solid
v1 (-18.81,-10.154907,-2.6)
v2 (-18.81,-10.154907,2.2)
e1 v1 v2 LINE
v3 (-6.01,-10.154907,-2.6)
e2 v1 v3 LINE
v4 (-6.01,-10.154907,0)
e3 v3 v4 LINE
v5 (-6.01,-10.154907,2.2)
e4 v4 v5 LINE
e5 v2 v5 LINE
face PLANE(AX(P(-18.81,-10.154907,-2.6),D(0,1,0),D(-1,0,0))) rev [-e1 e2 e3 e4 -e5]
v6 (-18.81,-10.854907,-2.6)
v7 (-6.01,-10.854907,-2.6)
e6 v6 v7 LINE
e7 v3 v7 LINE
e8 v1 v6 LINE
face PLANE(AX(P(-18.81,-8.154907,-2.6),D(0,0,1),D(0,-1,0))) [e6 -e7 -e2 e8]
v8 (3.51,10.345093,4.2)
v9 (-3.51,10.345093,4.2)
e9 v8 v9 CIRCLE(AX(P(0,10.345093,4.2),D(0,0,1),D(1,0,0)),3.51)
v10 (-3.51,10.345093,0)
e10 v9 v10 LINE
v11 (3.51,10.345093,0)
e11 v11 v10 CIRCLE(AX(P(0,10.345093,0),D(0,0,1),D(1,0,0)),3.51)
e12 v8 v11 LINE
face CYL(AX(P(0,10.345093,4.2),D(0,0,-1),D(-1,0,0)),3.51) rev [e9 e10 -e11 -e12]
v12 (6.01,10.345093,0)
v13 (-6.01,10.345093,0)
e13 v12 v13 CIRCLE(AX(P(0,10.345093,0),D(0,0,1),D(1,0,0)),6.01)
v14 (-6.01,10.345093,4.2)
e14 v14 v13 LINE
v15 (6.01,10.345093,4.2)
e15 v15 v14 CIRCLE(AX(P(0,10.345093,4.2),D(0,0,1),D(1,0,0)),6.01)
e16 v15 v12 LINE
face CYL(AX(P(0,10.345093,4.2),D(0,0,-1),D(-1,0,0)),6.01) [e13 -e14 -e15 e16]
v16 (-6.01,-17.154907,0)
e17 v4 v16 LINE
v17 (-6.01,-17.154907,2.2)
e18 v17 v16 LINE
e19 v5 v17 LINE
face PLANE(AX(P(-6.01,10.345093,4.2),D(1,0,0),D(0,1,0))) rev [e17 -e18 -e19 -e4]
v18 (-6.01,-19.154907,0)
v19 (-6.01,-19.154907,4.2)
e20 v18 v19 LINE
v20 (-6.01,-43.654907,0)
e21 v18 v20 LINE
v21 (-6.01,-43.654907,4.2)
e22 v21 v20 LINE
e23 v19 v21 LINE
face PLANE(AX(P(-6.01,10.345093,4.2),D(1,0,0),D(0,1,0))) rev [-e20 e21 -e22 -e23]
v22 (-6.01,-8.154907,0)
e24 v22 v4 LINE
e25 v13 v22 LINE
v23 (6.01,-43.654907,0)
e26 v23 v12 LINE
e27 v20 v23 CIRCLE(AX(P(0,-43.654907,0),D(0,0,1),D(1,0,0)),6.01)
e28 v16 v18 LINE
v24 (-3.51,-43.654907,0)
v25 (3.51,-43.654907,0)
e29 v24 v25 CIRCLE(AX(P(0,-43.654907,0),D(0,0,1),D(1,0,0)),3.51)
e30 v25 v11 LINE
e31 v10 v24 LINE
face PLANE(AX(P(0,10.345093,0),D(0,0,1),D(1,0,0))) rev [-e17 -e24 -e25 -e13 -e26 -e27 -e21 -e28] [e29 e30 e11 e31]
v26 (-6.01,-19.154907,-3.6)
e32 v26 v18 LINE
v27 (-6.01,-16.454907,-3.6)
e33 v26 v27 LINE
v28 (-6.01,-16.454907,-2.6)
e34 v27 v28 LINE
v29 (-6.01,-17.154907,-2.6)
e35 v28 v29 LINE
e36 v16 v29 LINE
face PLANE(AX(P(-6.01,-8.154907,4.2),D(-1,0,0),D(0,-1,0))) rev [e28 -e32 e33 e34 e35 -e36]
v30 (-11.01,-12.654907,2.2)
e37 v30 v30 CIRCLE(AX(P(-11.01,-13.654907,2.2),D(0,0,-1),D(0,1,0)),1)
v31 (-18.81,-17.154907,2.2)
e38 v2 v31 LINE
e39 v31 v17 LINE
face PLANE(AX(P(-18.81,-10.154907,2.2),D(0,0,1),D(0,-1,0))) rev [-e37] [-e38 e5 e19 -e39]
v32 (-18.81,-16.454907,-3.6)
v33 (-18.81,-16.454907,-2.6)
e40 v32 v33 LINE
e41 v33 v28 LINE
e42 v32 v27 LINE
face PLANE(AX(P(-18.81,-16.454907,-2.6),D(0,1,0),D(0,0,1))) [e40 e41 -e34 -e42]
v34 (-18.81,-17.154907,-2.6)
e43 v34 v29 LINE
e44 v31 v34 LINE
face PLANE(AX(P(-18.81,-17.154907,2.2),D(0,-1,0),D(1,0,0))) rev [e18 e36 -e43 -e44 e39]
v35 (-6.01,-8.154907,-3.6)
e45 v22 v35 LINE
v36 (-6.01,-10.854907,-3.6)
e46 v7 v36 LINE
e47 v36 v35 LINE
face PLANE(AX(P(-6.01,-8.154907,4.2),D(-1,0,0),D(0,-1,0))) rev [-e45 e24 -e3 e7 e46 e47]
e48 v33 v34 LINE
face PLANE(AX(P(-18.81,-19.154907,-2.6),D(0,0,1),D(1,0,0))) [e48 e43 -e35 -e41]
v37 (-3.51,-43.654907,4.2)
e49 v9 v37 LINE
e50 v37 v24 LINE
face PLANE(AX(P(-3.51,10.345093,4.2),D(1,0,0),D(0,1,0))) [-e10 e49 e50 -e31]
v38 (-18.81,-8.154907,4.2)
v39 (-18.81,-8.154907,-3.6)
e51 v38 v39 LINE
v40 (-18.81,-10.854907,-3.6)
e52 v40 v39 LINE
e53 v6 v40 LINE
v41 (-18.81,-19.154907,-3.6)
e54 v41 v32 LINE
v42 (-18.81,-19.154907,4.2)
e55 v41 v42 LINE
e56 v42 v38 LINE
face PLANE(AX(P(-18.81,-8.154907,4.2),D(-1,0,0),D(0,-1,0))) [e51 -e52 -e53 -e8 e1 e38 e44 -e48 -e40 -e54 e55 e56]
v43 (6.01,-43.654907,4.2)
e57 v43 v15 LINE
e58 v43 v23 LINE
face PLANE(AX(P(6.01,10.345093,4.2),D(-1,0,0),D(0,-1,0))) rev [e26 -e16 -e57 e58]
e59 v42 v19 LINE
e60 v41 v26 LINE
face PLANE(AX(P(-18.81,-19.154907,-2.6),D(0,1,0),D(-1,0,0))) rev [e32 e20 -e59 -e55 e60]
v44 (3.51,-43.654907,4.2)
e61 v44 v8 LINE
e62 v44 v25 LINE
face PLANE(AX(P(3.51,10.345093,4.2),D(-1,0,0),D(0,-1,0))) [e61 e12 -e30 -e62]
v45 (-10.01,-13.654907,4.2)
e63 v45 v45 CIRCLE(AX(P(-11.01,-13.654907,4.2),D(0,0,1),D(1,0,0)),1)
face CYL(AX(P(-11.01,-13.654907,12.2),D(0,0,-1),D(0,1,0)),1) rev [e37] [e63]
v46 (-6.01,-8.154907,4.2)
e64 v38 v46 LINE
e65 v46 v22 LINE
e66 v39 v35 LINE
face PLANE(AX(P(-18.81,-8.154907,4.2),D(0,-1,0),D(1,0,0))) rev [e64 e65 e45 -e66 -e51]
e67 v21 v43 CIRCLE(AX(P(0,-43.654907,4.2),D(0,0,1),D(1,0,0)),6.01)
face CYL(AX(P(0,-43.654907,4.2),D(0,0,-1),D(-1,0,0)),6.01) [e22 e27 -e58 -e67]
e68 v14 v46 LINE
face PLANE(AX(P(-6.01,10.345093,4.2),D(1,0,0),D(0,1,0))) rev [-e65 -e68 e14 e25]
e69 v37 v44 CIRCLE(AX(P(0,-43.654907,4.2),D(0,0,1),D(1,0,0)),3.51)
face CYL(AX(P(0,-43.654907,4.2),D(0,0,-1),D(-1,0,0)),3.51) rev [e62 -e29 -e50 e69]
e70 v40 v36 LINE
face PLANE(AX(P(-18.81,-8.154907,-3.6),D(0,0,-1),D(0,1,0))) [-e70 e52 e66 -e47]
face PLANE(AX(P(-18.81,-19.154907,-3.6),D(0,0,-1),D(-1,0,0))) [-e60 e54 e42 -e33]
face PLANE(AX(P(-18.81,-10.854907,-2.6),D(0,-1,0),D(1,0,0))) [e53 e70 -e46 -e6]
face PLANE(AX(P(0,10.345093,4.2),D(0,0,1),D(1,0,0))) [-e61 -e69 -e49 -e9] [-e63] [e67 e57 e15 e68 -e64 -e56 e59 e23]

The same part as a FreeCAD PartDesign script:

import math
import FreeCAD as App
import Part
import Sketcher
Q = App.Units.Quantity

doc = App.newDocument("Part")
body = doc.addObject("PartDesign::Body", "Body")

# Sketch on XY plane
sketch1 = doc.addObject("Sketcher::SketchObject", "Sketch")
body.addObject(sketch1)
sketch1.AttachmentSupport = (doc.XY_Plane, [""])
sketch1.MapMode = "FlatFace"
sketch1.addGeometry(Part.LineSegment(App.Vector(6, -43.7, 0), App.Vector(6, 10.3, 0)), False)
sketch1.addGeometry(Part.ArcOfCircle(Part.Circle(App.Vector(0, 10.3, 0), App.Vector(0, 0, 1), 6), math.radians(0), math.radians(180)), False)
sketch1.addGeometry(Part.LineSegment(App.Vector(-6, 10.3, 0), App.Vector(-6, -43.7, 0)), False)
sketch1.addGeometry(Part.ArcOfCircle(Part.Circle(App.Vector(0, -43.7, 0), App.Vector(0, 0, 1), 6), math.radians(180), math.radians(360)), False)
sketch1.addGeometry(Part.LineSegment(App.Vector(3.5, 10.3, 0), App.Vector(3.5, -43.7, 0)), False)
sketch1.addGeometry(Part.ArcOfCircle(Part.Circle(App.Vector(0, -43.7, 0), App.Vector(0, 0, 1), 3.5), math.radians(180), math.radians(360)), False)
sketch1.addGeometry(Part.LineSegment(App.Vector(-3.5, -43.7, 0), App.Vector(-3.5, 10.3, 0)), False)
sketch1.addGeometry(Part.ArcOfCircle(Part.Circle(App.Vector(0, 10.3, 0), App.Vector(0, 0, 1), 3.5), math.radians(0), math.radians(180)), False)
sketch1.addConstraint(Sketcher.Constraint("Tangent", 0, 2, 1, 1))
sketch1.addConstraint(Sketcher.Constraint("Tangent", 1, 2, 2, 1))
sketch1.addConstraint(Sketcher.Constraint("Tangent", 2, 2, 3, 1))
sketch1.addConstraint(Sketcher.Constraint("Tangent", 3, 2, 0, 1))
sketch1.addConstraint(Sketcher.Constraint("Tangent", 4, 2, 5, 2))
sketch1.addConstraint(Sketcher.Constraint("Tangent", 5, 1, 6, 1))
sketch1.addConstraint(Sketcher.Constraint("Tangent", 6, 2, 7, 2))
sketch1.addConstraint(Sketcher.Constraint("Tangent", 7, 1, 4, 1))
sketch1.addConstraint(Sketcher.Constraint("Vertical", 0))
sketch1.addConstraint(Sketcher.Constraint("Vertical", 2))
sketch1.addConstraint(Sketcher.Constraint("Vertical", 4))
sketch1.addConstraint(Sketcher.Constraint("Vertical", 6))
sketch1.addConstraint(Sketcher.Constraint("Coincident", 5, 3, 3, 3))
sketch1.addConstraint(Sketcher.Constraint("PointOnObject", 1, 3, -2))
sketch1.addConstraint(Sketcher.Constraint("Horizontal", 7, 3, 0, 2))
sketch1.addConstraint(Sketcher.Constraint("DistanceY", 0, 1, 0, 2, Q("54 mm")))
sketch1.addConstraint(Sketcher.Constraint("Radius", 1, Q("6.01 mm")))
sketch1.addConstraint(Sketcher.Constraint("Radius", 5, Q("3.51 mm")))
sketch1.addConstraint(Sketcher.Constraint("DistanceY", -1, 1, 1, 3, Q("10.345093 mm")))
pad1 = doc.addObject("PartDesign::Pad", "Pad")
body.addObject(pad1)
pad1.Profile = sketch1
pad1.Length = 4.2

# Sketch on YZ plane
sketch2 = doc.addObject("Sketcher::SketchObject", "Sketch001")
body.addObject(sketch2)
sketch2.AttachmentSupport = (doc.YZ_Plane, [""])
sketch2.MapMode = "FlatFace"
sketch2.AttachmentOffset = App.Placement(App.Vector(0, 0, -6.01), App.Rotation())
sketch2.addGeometry(Part.LineSegment(App.Vector(-8.2, 4.2, 0), App.Vector(-8.2, -2.6, 0)), False)
sketch2.addGeometry(Part.LineSegment(App.Vector(-8.2, -2.6, 0), App.Vector(-10.2, -2.6, 0)), False)
sketch2.addGeometry(Part.LineSegment(App.Vector(-10.2, -2.6, 0), App.Vector(-10.2, 2.2, 0)), False)
sketch2.addGeometry(Part.LineSegment(App.Vector(-10.2, 2.2, 0), App.Vector(-17.2, 2.2, 0)), False)
sketch2.addGeometry(Part.LineSegment(App.Vector(-17.2, 2.2, 0), App.Vector(-17.2, -2.6, 0)), False)
sketch2.addGeometry(Part.LineSegment(App.Vector(-17.2, -2.6, 0), App.Vector(-19.2, -2.6, 0)), False)
sketch2.addGeometry(Part.LineSegment(App.Vector(-19.2, -2.6, 0), App.Vector(-19.2, 4.2, 0)), False)
sketch2.addGeometry(Part.LineSegment(App.Vector(-19.2, 4.2, 0), App.Vector(-8.2, 4.2, 0)), False)
sketch2.addConstraint(Sketcher.Constraint("Coincident", 0, 2, 1, 1))
sketch2.addConstraint(Sketcher.Constraint("Coincident", 1, 2, 2, 1))
sketch2.addConstraint(Sketcher.Constraint("Coincident", 2, 2, 3, 1))
sketch2.addConstraint(Sketcher.Constraint("Coincident", 3, 2, 4, 1))
sketch2.addConstraint(Sketcher.Constraint("Coincident", 4, 2, 5, 1))
sketch2.addConstraint(Sketcher.Constraint("Coincident", 5, 2, 6, 1))
sketch2.addConstraint(Sketcher.Constraint("Coincident", 6, 2, 7, 1))
sketch2.addConstraint(Sketcher.Constraint("Coincident", 7, 2, 0, 1))
sketch2.addConstraint(Sketcher.Constraint("Vertical", 0))
sketch2.addConstraint(Sketcher.Constraint("Horizontal", 1))
sketch2.addConstraint(Sketcher.Constraint("Vertical", 2))
sketch2.addConstraint(Sketcher.Constraint("Horizontal", 3))
sketch2.addConstraint(Sketcher.Constraint("Vertical", 4))
sketch2.addConstraint(Sketcher.Constraint("Horizontal", 5))
sketch2.addConstraint(Sketcher.Constraint("Vertical", 6))
sketch2.addConstraint(Sketcher.Constraint("Horizontal", 7))
sketch2.addConstraint(Sketcher.Constraint("Horizontal", 1, 2, 4, 2))
sketch2.addConstraint(Sketcher.Constraint("Equal", 1, 5))
sketch2.addConstraint(Sketcher.Constraint("DistanceX", 1, 2, 1, 1, Q("2 mm")))
sketch2.addConstraint(Sketcher.Constraint("DistanceX", 3, 2, 3, 1, Q("7 mm")))
sketch2.addConstraint(Sketcher.Constraint("DistanceY", 0, 2, 0, 1, Q("6.8 mm")))
sketch2.addConstraint(Sketcher.Constraint("DistanceY", 2, 1, 2, 2, Q("4.8 mm")))
sketch2.addConstraint(Sketcher.Constraint("DistanceY", 0, 2, -1, 1, Q("2.6 mm")))
sketch2.addConstraint(Sketcher.Constraint("DistanceX", 0, 2, -1, 1, Q("8.154907 mm")))
pad2 = doc.addObject("PartDesign::Pad", "Pad001")
body.addObject(pad2)
pad2.Profile = sketch2
pad2.Length = 12.8
pad2.Reversed = True

# Sketch on XY plane
sketch3 = doc.addObject("Sketcher::SketchObject", "Sketch002")
body.addObject(sketch3)
sketch3.AttachmentSupport = (doc.XY_Plane, [""])
sketch3.MapMode = "FlatFace"
sketch3.AttachmentOffset = App.Placement(App.Vector(0, 0, 2.2), App.Rotation())
sketch3.addGeometry(Part.Circle(App.Vector(-11, -13.7, 0), App.Vector(0, 0, 1), 1), False)
sketch3.addConstraint(Sketcher.Constraint("Diameter", 0, Q("2 mm")))
sketch3.addConstraint(Sketcher.Constraint("DistanceX", 0, 3, -1, 1, Q("11.01 mm")))
sketch3.addConstraint(Sketcher.Constraint("DistanceY", 0, 3, -1, 1, Q("13.654907 mm")))
pocket1 = doc.addObject("PartDesign::Pocket", "Pocket")
body.addObject(pocket1)
pocket1.Profile = sketch3
pocket1.Length = 10
pocket1.Reversed = True

# Sketch on YZ plane
sketch4 = doc.addObject("Sketcher::SketchObject", "Sketch003")
body.addObject(sketch4)
sketch4.AttachmentSupport = (doc.YZ_Plane, [""])
sketch4.MapMode = "FlatFace"
sketch4.AttachmentOffset = App.Placement(App.Vector(0, 0, -6.01), App.Rotation())
sketch4.addGeometry(Part.LineSegment(App.Vector(-8.2, -2.6, 0), App.Vector(-10.9, -2.6, 0)), False)
sketch4.addGeometry(Part.LineSegment(App.Vector(-10.9, -2.6, 0), App.Vector(-10.9, -3.6, 0)), False)
sketch4.addGeometry(Part.LineSegment(App.Vector(-10.9, -3.6, 0), App.Vector(-8.2, -3.6, 0)), False)
sketch4.addGeometry(Part.LineSegment(App.Vector(-8.2, -3.6, 0), App.Vector(-8.2, -2.6, 0)), False)
sketch4.addGeometry(Part.LineSegment(App.Vector(-16.5, -2.6, 0), App.Vector(-19.2, -2.6, 0)), False)
sketch4.addGeometry(Part.LineSegment(App.Vector(-19.2, -2.6, 0), App.Vector(-19.2, -3.6, 0)), False)
sketch4.addGeometry(Part.LineSegment(App.Vector(-19.2, -3.6, 0), App.Vector(-16.5, -3.6, 0)), False)
sketch4.addGeometry(Part.LineSegment(App.Vector(-16.5, -3.6, 0), App.Vector(-16.5, -2.6, 0)), False)
sketch4.addConstraint(Sketcher.Constraint("Coincident", 0, 2, 1, 1))
sketch4.addConstraint(Sketcher.Constraint("Coincident", 1, 2, 2, 1))
sketch4.addConstraint(Sketcher.Constraint("Coincident", 2, 2, 3, 1))
sketch4.addConstraint(Sketcher.Constraint("Coincident", 3, 2, 0, 1))
sketch4.addConstraint(Sketcher.Constraint("Coincident", 4, 2, 5, 1))
sketch4.addConstraint(Sketcher.Constraint("Coincident", 5, 2, 6, 1))
sketch4.addConstraint(Sketcher.Constraint("Coincident", 6, 2, 7, 1))
sketch4.addConstraint(Sketcher.Constraint("Coincident", 7, 2, 4, 1))
sketch4.addConstraint(Sketcher.Constraint("Horizontal", 0))
sketch4.addConstraint(Sketcher.Constraint("Vertical", 1))
sketch4.addConstraint(Sketcher.Constraint("Horizontal", 2))
sketch4.addConstraint(Sketcher.Constraint("Vertical", 3))
sketch4.addConstraint(Sketcher.Constraint("Horizontal", 4))
sketch4.addConstraint(Sketcher.Constraint("Vertical", 5))
sketch4.addConstraint(Sketcher.Constraint("Horizontal", 6))
sketch4.addConstraint(Sketcher.Constraint("Vertical", 7))
sketch4.addConstraint(Sketcher.Constraint("Horizontal", 3, 2, 4, 2))
sketch4.addConstraint(Sketcher.Constraint("Horizontal", 2, 2, 5, 2))
sketch4.addConstraint(Sketcher.Constraint("Equal", 2, 4))
sketch4.addConstraint(Sketcher.Constraint("DistanceY", 1, 2, 1, 1, Q("1 mm")))
sketch4.addConstraint(Sketcher.Constraint("DistanceX", 0, 2, 0, 1, Q("2.7 mm")))
sketch4.addConstraint(Sketcher.Constraint("DistanceX", 4, 2, 3, 2, Q("11 mm")))
sketch4.addConstraint(Sketcher.Constraint("DistanceY", 0, 2, -1, 1, Q("2.6 mm")))
sketch4.addConstraint(Sketcher.Constraint("DistanceX", 0, 2, -1, 1, Q("10.854907 mm")))
pad3 = doc.addObject("PartDesign::Pad", "Pad002")
body.addObject(pad3)
pad3.Profile = sketch4
pad3.Length = 12.8
pad3.Reversed = True

doc.recompute()
